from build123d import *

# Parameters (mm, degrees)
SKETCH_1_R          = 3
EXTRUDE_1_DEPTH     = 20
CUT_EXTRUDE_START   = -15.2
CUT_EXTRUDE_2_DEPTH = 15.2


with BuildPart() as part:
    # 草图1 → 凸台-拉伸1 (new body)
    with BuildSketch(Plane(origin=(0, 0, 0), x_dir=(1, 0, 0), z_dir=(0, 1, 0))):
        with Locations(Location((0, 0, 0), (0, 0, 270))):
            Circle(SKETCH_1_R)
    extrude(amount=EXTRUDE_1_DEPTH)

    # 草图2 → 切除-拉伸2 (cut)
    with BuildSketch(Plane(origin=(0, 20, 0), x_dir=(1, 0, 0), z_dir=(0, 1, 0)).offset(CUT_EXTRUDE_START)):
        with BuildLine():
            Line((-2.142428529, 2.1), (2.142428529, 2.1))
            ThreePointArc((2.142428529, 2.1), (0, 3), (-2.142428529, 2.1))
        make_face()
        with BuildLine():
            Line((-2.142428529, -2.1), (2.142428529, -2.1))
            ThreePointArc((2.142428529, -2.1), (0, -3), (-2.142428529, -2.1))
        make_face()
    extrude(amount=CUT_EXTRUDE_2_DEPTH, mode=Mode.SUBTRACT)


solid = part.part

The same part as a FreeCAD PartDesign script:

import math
import FreeCAD as App
import Part
import Sketcher

doc = App.newDocument("Part")
body = doc.addObject("PartDesign::Body", "Body")

sketch1 = body.newObject("Sketcher::SketchObject", "Sketch")
sketch1.AttachmentSupport = (doc.getObject("XZ_Plane"), [""])
sketch1.MapMode = "FlatFace"
sketch1.addGeometry(Part.Circle(App.Vector(0, 0, 0), App.Vector(0, 0, 1), 3), False)
sketch1.addConstraint([
    Sketcher.Constraint("Coincident", 0, 3, -1, 1),
    Sketcher.Constraint("Diameter", 0, 6.0),
])
pad1 = body.newObject("PartDesign::Pad", "Pad")
pad1.Profile = sketch1
pad1.Length = 20
pad1.Reversed = True

sketch2 = body.newObject("Sketcher::SketchObject", "Sketch001")
sketch2.AttachmentSupport = (doc.getObject("XZ_Plane"), [""])
sketch2.MapMode = "FlatFace"
sketch2.AttachmentOffset = App.Placement(App.Vector(0, 0, -4.8), App.Rotation())
sketch2.addGeometry([
    Part.LineSegment(App.Vector(-2.1, -2.1, 0), App.Vector(2.1, -2.1, 0)),
    Part.ArcOfCircle(Part.Circle(App.Vector(0, 0, 0), App.Vector(0, 0, 1), 3), math.radians(-136), math.radians(-44)),
    Part.LineSegment(App.Vector(2.1, 2.1, 0), App.Vector(-2.1, 2.1, 0)),
    Part.ArcOfCircle(Part.Circle(App.Vector(0, 0, 0), App.Vector(0, 0, 1), 3), math.radians(44), math.radians(136)),
], False)
sketch2.addConstraint([
    Sketcher.Constraint("Coincident", 0, 1, 1, 1),
    Sketcher.Constraint("Coincident", 1, 2, 0, 2),
    Sketcher.Constraint("Coincident", 2, 1, 3, 1),
    Sketcher.Constraint("Coincident", 3, 2, 2, 2),
    Sketcher.Constraint("Horizontal", 0),
    Sketcher.Constraint("Horizontal", 2),
    Sketcher.Constraint("Coincident", 1, 3, -1, 1),
    Sketcher.Constraint("Coincident", 3, 3, -1, 1),
    Sketcher.Constraint("Equal", 1, 3),
    Sketcher.Constraint("Vertical", 1, 2, 2, 1),
    Sketcher.Constraint("Radius", 1, 3.0),
    Sketcher.Constraint("DistanceY", 0, 1, -1, 1, 2.1),
])
pocket1 = body.newObject("PartDesign::Pocket", "Pocket")
pocket1.Profile = sketch2
pocket1.Length = 15.2

doc.recompute()
